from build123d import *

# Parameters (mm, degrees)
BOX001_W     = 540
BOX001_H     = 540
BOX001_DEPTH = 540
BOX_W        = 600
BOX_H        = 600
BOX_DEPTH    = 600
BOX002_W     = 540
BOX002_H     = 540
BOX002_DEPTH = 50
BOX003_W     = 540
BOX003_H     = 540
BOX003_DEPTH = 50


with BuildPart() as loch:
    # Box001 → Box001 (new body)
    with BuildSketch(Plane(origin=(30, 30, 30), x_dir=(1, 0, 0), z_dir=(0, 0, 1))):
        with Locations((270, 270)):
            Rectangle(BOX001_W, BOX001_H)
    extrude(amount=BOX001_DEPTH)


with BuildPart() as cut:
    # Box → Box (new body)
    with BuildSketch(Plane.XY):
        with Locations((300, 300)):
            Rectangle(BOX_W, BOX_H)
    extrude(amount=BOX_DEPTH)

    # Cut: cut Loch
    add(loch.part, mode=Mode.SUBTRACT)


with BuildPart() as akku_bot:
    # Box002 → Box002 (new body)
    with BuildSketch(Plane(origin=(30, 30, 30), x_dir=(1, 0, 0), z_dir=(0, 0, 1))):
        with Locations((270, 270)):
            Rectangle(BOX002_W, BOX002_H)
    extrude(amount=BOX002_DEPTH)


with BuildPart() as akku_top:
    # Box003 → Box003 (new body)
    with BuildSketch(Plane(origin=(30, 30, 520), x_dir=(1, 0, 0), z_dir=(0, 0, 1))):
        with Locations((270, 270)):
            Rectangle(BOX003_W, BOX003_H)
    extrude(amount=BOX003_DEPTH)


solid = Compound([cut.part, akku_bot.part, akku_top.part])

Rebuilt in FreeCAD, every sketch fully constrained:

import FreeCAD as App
import Part
import Sketcher

V = App.Vector
Q = App.Units.Quantity

doc = App.newDocument("Part")
body = doc.addObject("PartDesign::Body", "Body")

# Sketch on XY plane
sketch1 = body.newObject("Sketcher::SketchObject", "Sketch")
sketch1.AttachmentSupport = (doc.getObject("XY_Plane"), [""])
sketch1.MapMode = "FlatFace"
sketch1.AttachmentOffset = App.Placement(V(0, 0, 30), App.Rotation())
sketch1.addGeometry([
    Part.LineSegment(V(30, 570, 0), V(30, 30, 0)),
    Part.LineSegment(V(30, 30, 0), V(570, 30, 0)),
    Part.LineSegment(V(570, 30, 0), V(570, 570, 0)),
    Part.LineSegment(V(570, 570, 0), V(30, 570, 0)),
], False)
sketch1.addConstraint([
    Sketcher.Constraint("Coincident", 0, 2, 1, 1),
    Sketcher.Constraint("Coincident", 1, 2, 2, 1),
    Sketcher.Constraint("Coincident", 2, 2, 3, 1),
    Sketcher.Constraint("Coincident", 3, 2, 0, 1),
    Sketcher.Constraint("Vertical", 0),
    Sketcher.Constraint("Horizontal", 1),
    Sketcher.Constraint("Vertical", 2),
    Sketcher.Constraint("Horizontal", 3),
    Sketcher.Constraint("Equal", 3, 0),
    Sketcher.Constraint("DistanceX", 1, 1, 1, 2, Q("540 mm")),
    Sketcher.Constraint("DistanceX", -1, 1, 0, 2, Q("30 mm")),
    Sketcher.Constraint("DistanceY", -1, 1, 0, 2, Q("30 mm")),
])
pad1 = body.newObject("PartDesign::Pad", "Pad")
pad1.Profile = sketch1
pad1.Length = 540
body2 = doc.addObject("PartDesign::Body", "Body001")

# Sketch on XY plane
sketch2 = body2.newObject("Sketcher::SketchObject", "Sketch001")
sketch2.AttachmentSupport = (doc.getObject("XY_Plane001"), [""])
sketch2.MapMode = "FlatFace"
sketch2.addGeometry([
    Part.LineSegment(V(0, 600, 0), V(0, 0, 0)),
    Part.LineSegment(V(0, 0, 0), V(600, 0, 0)),
    Part.LineSegment(V(600, 0, 0), V(600, 600, 0)),
    Part.LineSegment(V(600, 600, 0), V(0, 600, 0)),
], False)
sketch2.addConstraint([
    Sketcher.Constraint("Coincident", 0, 2, 1, 1),
    Sketcher.Constraint("Coincident", 1, 2, 2, 1),
    Sketcher.Constraint("Coincident", 2, 2, 3, 1),
    Sketcher.Constraint("Coincident", 3, 2, 0, 1),
    Sketcher.Constraint("Vertical", 0),
    Sketcher.Constraint("Horizontal", 1),
    Sketcher.Constraint("Vertical", 2),
    Sketcher.Constraint("Horizontal", 3),
    Sketcher.Constraint("Coincident", 0, 2, -1, 1),
    Sketcher.Constraint("Equal", 3, 0),
    Sketcher.Constraint("DistanceX", 1, 1, 1, 2, Q("600 mm")),
])
pad2 = body2.newObject("PartDesign::Pad", "Pad001")
pad2.Profile = sketch2
pad2.Length = 600
doc.recompute()

boolean = body2.newObject("PartDesign::Boolean", "Boolean")
boolean.Type = "Cut"
boolean.addObjects([body])
body3 = doc.addObject("PartDesign::Body", "Body002")

# Sketch on XY plane
sketch3 = body3.newObject("Sketcher::SketchObject", "Sketch002")
sketch3.AttachmentSupport = (doc.getObject("XY_Plane002"), [""])
sketch3.MapMode = "FlatFace"
sketch3.AttachmentOffset = App.Placement(V(0, 0, 30), App.Rotation())
sketch3.addGeometry([
    Part.LineSegment(V(30, 570, 0), V(30, 30, 0)),
    Part.LineSegment(V(30, 30, 0), V(570, 30, 0)),
    Part.LineSegment(V(570, 30, 0), V(570, 570, 0)),
    Part.LineSegment(V(570, 570, 0), V(30, 570, 0)),
], False)
sketch3.addConstraint([
    Sketcher.Constraint("Coincident", 0, 2, 1, 1),
    Sketcher.Constraint("Coincident", 1, 2, 2, 1),
    Sketcher.Constraint("Coincident", 2, 2, 3, 1),
    Sketcher.Constraint("Coincident", 3, 2, 0, 1),
    Sketcher.Constraint("Vertical", 0),
    Sketcher.Constraint("Horizontal", 1),
    Sketcher.Constraint("Vertical", 2),
    Sketcher.Constraint("Horizontal", 3),
    Sketcher.Constraint("Equal", 3, 0),
    Sketcher.Constraint("DistanceX", 1, 1, 1, 2, Q("540 mm")),
    Sketcher.Constraint("DistanceX", -1, 1, 0, 2, Q("30 mm")),
    Sketcher.Constraint("DistanceY", -1, 1, 0, 2, Q("30 mm")),
])
pad3 = body3.newObject("PartDesign::Pad", "Pad002")
pad3.Profile = sketch3
pad3.Length = 50
body4 = doc.addObject("PartDesign::Body", "Body003")

# Sketch on XY plane
sketch4 = body4.newObject("Sketcher::SketchObject", "Sketch003")
sketch4.AttachmentSupport = (doc.getObject("XY_Plane003"), [""])
sketch4.MapMode = "FlatFace"
sketch4.AttachmentOffset = App.Placement(V(0, 0, 520), App.Rotation())
sketch4.addGeometry([
    Part.LineSegment(V(30, 570, 0), V(30, 30, 0)),
    Part.LineSegment(V(30, 30, 0), V(570, 30, 0)),
    Part.LineSegment(V(570, 30, 0), V(570, 570, 0)),
    Part.LineSegment(V(570, 570, 0), V(30, 570, 0)),
], False)
sketch4.addConstraint([
    Sketcher.Constraint("Coincident", 0, 2, 1, 1),
    Sketcher.Constraint("Coincident", 1, 2, 2, 1),
    Sketcher.Constraint("Coincident", 2, 2, 3, 1),
    Sketcher.Constraint("Coincident", 3, 2, 0, 1),
    Sketcher.Constraint("Vertical", 0),
    Sketcher.Constraint("Horizontal", 1),
    Sketcher.Constraint("Vertical", 2),
    Sketcher.Constraint("Horizontal", 3),
    Sketcher.Constraint("Equal", 3, 0),
    Sketcher.Constraint("DistanceX", 1, 1, 1, 2, Q("540 mm")),
    Sketcher.Constraint("DistanceX", -1, 1, 0, 2, Q("30 mm")),
    Sketcher.Constraint("DistanceY", -1, 1, 0, 2, Q("30 mm")),
])
pad4 = body4.newObject("PartDesign::Pad", "Pad003")
pad4.Profile = sketch4
pad4.Length = 50

doc.recompute()
